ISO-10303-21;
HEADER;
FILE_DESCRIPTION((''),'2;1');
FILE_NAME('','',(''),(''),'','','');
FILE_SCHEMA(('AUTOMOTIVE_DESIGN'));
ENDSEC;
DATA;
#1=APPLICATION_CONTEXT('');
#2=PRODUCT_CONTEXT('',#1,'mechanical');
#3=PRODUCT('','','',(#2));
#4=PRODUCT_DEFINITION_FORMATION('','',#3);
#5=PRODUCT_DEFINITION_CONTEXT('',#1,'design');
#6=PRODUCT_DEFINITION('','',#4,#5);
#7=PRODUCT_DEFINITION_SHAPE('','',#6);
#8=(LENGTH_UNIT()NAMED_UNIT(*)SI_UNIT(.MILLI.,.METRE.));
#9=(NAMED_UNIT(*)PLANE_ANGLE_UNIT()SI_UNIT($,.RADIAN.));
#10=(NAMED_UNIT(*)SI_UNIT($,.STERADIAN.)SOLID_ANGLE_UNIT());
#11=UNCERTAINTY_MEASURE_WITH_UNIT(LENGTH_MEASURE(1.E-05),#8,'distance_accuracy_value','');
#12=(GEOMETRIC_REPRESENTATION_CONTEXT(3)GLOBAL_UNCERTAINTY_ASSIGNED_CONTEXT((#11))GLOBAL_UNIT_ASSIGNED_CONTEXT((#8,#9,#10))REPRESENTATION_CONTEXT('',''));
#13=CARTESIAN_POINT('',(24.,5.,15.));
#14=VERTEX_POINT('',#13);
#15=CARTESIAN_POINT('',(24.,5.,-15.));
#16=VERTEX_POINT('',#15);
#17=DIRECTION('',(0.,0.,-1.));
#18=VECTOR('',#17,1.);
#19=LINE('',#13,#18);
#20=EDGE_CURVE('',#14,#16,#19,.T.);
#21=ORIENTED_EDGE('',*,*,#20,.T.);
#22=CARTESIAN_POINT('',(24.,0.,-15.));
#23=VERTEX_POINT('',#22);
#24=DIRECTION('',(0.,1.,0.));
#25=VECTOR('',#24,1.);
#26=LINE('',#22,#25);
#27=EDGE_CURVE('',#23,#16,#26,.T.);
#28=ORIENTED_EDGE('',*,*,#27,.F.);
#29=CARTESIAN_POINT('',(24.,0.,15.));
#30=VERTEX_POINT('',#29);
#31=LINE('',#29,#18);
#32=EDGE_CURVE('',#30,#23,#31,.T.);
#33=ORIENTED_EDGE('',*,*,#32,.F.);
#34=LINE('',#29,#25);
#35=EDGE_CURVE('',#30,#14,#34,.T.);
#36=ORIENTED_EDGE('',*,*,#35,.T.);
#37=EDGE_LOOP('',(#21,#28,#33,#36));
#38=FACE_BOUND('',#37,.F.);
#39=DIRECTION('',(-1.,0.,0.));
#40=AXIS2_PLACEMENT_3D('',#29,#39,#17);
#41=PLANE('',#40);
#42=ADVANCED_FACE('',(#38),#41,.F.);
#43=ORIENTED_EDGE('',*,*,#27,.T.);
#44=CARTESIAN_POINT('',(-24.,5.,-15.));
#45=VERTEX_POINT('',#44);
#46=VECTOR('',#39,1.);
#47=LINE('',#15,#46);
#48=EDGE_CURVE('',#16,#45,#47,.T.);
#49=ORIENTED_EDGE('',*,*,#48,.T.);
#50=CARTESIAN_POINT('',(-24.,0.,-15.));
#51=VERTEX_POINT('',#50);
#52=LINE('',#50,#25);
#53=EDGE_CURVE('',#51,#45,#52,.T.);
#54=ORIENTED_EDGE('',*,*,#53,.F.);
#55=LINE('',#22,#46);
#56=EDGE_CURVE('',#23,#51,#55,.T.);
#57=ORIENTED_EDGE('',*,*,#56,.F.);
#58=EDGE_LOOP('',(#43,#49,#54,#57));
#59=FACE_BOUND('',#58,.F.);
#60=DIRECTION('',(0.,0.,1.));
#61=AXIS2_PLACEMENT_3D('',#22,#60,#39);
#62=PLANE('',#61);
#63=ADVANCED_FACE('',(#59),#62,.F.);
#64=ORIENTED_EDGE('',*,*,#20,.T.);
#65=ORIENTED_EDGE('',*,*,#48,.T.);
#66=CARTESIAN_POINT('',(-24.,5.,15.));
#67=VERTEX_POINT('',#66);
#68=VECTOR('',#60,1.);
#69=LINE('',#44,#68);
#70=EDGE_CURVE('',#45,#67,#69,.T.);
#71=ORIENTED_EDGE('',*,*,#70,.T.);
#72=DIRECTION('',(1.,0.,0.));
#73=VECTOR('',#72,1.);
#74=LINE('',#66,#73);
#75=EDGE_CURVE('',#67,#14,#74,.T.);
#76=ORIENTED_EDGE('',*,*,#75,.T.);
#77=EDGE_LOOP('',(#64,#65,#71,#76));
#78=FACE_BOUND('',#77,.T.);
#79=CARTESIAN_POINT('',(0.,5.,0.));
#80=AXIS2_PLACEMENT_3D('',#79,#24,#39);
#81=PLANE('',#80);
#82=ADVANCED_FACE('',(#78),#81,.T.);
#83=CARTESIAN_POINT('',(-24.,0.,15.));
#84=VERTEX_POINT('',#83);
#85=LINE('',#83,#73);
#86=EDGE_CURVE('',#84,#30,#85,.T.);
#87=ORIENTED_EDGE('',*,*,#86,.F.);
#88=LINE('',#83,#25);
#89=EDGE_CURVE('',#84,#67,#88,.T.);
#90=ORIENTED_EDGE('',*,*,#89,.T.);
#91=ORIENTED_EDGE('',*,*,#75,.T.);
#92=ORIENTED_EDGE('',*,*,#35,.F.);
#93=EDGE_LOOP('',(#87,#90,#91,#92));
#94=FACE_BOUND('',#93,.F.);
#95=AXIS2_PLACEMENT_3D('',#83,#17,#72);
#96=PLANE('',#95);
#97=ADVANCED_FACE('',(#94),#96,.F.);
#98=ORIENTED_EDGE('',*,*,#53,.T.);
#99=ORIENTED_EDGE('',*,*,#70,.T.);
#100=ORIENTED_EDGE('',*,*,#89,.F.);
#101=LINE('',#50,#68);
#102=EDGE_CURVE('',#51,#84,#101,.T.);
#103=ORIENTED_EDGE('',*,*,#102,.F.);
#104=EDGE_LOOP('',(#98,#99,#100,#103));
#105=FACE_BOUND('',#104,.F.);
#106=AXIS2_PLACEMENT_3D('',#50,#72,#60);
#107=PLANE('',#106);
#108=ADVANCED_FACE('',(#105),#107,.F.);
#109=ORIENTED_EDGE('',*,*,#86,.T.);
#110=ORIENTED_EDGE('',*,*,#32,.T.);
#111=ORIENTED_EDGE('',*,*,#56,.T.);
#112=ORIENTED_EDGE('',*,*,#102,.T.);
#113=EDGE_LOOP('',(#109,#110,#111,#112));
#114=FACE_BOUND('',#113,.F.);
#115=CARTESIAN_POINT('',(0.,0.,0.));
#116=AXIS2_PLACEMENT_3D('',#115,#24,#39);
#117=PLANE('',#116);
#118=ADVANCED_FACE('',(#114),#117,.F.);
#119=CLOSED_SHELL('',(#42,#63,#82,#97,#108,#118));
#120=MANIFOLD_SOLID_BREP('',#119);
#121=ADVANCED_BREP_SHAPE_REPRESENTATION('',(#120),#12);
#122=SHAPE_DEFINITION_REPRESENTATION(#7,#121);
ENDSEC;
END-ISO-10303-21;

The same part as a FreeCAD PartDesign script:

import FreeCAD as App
import Part
import Sketcher

V = App.Vector


def add_polygon(sketch, points):
    """Adds a closed chain of lines whose ends are joined by coincident constraints."""
    first, n = sketch.GeometryCount, len(points)
    for a, b in zip(points, points[1:] + points[:1]):
        sketch.addGeometry(Part.LineSegment(App.Vector(*a, 0), App.Vector(*b, 0)), False)
    for i in range(n):
        sketch.addConstraint(Sketcher.Constraint("Coincident", first + i, 2, first + (i + 1) % n, 1))

doc = App.newDocument("Part")
body = doc.addObject("PartDesign::Body", "Body")

# Sketch on XZ plane
sketch1 = body.newObject("Sketcher::SketchObject", "Sketch")
sketch1.AttachmentSupport = (doc.getObject("XZ_Plane"), [""])
sketch1.MapMode = "FlatFace"
add_polygon(sketch1, [(-24, -15), (-24, 15), (24, 15), (24, -15)])  # lines 0-3
sketch1.addConstraint([
    Sketcher.Constraint("Vertical", 0),
    Sketcher.Constraint("Horizontal", 1),
    Sketcher.Constraint("Vertical", 2),
    Sketcher.Constraint("Horizontal", 3),
    Sketcher.Constraint("Symmetric", 0, 2, 2, 2, -1, 1),
    Sketcher.Constraint("DistanceX", 1, 1, 1, 2, 48.0),
    Sketcher.Constraint("DistanceY", 0, 1, 0, 2, 30.0),
])
pad1 = body.newObject("PartDesign::Pad", "Pad")
pad1.Profile = sketch1
pad1.Length = 5
pad1.Reversed = True

doc.recompute()
